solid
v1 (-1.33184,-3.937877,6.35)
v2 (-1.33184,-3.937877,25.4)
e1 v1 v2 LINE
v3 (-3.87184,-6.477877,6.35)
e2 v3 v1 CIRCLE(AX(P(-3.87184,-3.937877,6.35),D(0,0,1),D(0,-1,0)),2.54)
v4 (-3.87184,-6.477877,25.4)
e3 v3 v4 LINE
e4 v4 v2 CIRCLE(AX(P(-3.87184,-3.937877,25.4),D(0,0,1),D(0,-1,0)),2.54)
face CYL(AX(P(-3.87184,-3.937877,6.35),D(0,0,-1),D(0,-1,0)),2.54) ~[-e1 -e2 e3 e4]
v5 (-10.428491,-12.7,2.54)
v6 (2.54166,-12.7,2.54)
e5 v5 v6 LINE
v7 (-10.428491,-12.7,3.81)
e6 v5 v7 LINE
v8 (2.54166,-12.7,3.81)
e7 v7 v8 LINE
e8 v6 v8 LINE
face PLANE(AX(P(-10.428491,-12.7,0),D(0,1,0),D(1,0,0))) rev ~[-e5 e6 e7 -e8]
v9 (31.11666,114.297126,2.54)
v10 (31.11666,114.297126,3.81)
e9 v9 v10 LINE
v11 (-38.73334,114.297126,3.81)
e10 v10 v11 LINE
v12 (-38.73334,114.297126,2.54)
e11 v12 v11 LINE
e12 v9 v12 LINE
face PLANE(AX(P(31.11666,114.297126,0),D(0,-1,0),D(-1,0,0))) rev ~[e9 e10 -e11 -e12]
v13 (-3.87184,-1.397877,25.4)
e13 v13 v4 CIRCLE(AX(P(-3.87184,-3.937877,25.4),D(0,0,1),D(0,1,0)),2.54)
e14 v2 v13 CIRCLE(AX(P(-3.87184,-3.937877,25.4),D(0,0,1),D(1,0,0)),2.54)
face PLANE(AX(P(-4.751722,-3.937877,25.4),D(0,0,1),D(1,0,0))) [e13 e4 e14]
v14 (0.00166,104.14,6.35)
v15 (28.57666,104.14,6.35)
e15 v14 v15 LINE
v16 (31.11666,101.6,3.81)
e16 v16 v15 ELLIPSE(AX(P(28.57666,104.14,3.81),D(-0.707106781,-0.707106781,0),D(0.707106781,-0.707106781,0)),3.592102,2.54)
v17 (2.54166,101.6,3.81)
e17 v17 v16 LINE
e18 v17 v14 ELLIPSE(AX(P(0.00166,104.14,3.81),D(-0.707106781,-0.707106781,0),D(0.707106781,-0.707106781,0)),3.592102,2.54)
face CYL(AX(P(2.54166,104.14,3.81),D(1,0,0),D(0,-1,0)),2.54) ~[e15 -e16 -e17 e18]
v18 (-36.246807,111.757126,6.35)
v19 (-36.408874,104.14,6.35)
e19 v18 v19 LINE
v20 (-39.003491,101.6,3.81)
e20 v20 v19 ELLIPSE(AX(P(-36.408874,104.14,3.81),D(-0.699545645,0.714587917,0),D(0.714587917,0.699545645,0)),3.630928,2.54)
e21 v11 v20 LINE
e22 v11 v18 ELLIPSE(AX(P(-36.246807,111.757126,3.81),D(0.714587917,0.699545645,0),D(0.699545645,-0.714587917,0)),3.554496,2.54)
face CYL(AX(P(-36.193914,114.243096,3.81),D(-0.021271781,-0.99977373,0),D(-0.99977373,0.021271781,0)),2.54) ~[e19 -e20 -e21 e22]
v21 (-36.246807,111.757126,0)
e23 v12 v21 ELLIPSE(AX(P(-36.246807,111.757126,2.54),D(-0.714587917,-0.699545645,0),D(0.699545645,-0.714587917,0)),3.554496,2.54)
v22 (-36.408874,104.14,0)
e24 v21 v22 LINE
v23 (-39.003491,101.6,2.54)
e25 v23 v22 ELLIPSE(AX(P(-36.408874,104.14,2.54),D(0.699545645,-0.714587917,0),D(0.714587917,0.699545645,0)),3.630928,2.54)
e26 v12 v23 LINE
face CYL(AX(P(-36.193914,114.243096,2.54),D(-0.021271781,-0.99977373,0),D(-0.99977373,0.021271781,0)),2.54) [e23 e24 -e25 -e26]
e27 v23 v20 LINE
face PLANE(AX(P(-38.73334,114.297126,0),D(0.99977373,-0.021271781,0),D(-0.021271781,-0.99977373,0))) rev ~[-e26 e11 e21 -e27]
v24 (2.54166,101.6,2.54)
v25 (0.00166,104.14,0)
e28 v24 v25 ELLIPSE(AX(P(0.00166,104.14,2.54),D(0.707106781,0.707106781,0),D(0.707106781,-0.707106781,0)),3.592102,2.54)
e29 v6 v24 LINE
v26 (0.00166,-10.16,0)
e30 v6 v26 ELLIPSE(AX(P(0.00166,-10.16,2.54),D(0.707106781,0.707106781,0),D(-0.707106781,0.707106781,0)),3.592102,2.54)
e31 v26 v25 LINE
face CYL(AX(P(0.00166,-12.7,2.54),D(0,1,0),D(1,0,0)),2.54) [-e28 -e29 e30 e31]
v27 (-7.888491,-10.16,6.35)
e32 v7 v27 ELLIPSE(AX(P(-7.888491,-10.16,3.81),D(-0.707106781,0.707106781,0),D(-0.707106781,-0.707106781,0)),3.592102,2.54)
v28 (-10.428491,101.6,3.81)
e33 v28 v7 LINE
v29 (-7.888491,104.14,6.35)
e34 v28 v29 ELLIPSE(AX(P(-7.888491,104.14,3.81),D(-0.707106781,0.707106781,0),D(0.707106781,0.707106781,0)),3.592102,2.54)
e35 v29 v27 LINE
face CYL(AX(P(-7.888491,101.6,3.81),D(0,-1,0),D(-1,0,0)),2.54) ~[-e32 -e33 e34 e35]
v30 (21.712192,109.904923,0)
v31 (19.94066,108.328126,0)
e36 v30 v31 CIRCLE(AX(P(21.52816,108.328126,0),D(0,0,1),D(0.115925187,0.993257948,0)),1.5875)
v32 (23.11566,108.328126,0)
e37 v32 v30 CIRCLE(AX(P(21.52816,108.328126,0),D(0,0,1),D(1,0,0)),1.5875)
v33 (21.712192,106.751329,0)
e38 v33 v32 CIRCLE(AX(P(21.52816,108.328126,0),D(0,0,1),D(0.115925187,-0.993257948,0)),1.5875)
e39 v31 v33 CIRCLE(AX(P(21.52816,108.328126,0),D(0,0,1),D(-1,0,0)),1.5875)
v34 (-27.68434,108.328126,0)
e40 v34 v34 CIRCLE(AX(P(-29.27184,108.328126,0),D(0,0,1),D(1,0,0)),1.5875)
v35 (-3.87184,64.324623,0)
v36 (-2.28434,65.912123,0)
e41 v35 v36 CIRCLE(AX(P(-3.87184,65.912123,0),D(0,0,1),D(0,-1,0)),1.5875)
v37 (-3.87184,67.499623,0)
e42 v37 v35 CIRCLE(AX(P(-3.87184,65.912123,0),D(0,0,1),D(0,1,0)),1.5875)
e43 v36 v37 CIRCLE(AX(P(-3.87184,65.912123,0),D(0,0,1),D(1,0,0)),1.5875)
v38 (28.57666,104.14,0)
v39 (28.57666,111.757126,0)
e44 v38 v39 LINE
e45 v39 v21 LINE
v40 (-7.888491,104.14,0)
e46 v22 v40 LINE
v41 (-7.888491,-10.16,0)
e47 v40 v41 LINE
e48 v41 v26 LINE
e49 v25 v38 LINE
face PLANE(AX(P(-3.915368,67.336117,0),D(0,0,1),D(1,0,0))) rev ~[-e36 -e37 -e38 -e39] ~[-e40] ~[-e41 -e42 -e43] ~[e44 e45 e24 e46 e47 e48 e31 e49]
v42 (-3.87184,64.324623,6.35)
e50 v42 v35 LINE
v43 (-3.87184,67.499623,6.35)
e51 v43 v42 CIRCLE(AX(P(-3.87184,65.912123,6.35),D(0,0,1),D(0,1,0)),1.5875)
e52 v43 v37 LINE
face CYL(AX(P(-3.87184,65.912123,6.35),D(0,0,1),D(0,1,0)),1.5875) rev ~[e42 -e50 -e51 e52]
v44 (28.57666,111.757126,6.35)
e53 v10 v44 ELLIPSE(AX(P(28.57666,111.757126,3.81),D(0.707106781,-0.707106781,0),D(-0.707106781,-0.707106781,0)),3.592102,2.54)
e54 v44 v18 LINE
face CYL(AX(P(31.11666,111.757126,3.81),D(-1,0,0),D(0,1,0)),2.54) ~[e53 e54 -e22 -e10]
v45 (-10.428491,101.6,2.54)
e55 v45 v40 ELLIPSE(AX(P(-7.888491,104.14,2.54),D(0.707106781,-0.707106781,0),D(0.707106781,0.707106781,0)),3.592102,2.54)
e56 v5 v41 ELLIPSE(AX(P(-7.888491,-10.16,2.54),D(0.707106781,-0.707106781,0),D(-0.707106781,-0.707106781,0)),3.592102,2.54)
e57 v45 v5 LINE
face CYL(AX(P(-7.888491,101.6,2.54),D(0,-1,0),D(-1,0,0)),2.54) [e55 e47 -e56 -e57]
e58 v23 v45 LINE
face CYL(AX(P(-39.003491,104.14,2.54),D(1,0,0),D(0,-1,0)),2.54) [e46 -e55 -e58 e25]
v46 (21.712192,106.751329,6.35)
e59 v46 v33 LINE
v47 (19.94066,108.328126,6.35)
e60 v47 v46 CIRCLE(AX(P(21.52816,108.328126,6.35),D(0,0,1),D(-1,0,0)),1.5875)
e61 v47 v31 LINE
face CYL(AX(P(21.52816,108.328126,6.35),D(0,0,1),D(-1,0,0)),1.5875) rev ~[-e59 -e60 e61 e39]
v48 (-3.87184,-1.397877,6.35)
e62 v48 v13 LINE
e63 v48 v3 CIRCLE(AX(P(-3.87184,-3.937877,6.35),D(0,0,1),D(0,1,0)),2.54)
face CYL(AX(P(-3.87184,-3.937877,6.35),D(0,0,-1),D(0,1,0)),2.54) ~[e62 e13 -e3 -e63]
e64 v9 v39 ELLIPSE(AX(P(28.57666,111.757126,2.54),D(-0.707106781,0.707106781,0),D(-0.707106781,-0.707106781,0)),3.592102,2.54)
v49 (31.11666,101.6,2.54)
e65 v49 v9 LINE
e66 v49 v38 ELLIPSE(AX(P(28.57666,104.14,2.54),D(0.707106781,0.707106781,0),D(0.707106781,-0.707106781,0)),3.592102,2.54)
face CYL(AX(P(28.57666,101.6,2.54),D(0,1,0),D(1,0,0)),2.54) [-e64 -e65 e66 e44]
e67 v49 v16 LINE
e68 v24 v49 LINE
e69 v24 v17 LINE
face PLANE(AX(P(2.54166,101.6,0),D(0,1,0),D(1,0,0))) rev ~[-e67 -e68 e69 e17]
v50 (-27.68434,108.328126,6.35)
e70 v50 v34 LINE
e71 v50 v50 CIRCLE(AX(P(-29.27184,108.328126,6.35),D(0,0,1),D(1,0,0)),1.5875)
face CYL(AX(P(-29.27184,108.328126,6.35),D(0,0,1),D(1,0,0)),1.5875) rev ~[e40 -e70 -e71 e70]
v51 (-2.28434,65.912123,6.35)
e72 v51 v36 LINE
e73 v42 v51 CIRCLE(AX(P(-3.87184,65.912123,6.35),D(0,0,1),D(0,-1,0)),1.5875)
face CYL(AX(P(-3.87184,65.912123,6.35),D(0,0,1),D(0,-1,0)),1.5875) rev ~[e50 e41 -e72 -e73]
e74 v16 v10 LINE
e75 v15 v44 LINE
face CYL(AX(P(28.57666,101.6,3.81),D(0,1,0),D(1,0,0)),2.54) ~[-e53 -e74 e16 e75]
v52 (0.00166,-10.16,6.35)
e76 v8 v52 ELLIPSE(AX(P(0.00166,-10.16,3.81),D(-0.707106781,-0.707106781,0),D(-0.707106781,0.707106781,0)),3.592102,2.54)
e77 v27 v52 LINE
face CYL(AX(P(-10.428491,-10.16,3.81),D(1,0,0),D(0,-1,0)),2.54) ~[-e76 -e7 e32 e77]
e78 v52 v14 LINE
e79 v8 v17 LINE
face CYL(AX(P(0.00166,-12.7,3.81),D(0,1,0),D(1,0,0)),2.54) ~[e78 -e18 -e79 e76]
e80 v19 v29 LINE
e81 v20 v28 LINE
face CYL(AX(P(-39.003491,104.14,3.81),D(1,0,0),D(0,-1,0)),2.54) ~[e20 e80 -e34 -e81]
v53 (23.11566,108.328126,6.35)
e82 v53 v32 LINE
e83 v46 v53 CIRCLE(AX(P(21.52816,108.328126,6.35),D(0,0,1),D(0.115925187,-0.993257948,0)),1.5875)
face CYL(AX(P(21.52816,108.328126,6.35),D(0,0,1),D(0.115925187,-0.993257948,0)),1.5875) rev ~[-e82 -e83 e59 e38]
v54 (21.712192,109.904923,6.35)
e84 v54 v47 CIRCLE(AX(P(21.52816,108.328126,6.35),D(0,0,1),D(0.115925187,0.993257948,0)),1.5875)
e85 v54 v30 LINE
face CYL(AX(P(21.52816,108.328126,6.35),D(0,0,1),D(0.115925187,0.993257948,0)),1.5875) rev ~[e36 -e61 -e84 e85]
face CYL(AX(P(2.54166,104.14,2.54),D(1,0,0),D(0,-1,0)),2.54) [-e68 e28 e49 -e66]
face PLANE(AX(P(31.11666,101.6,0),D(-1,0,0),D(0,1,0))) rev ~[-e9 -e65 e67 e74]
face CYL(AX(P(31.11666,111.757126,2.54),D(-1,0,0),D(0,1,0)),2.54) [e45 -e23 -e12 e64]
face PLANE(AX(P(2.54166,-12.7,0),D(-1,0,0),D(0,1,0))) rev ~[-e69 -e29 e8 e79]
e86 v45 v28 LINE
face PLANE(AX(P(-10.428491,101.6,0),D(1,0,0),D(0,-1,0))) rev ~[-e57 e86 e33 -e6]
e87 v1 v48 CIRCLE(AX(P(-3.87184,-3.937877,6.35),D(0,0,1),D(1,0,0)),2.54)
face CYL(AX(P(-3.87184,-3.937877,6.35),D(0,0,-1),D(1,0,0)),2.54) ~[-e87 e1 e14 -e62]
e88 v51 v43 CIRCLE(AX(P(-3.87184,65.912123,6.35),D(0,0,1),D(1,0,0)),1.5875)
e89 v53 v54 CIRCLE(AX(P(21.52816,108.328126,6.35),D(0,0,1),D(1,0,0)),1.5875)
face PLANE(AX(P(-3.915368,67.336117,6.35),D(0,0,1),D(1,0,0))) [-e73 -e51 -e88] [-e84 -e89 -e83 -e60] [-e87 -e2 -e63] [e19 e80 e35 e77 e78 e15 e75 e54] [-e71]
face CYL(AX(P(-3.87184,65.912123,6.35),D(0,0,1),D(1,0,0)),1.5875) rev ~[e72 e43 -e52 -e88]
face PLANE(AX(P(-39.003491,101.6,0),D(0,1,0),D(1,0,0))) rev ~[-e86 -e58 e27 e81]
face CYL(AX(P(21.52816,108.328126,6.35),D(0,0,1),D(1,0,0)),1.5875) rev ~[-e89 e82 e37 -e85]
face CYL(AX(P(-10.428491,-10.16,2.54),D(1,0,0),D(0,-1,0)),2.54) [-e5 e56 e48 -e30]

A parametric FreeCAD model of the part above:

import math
import FreeCAD as App
import Part
import Sketcher
from FreeCAD import Vector
Q = App.Units.Quantity


def edges_at(feature, points):
    """Names of the edges that pass closest to the given points."""
    edges = feature.Shape.Edges
    near = lambda p: min(range(len(edges)), key=lambda i: edges[i].distToShape(Part.Vertex(*p))[0])
    return sorted({f"Edge{near(p) + 1}" for p in points})


def add_polygon(sketch, points):
    """Adds a closed chain of lines whose ends are joined by coincident constraints."""
    first, n = sketch.GeometryCount, len(points)
    for a, b in zip(points, points[1:] + points[:1]):
        sketch.addGeometry(Part.LineSegment(App.Vector(*a, 0), App.Vector(*b, 0)), False)
    for i in range(n):
        sketch.addConstraint(Sketcher.Constraint("Coincident", first + i, 2, first + (i + 1) % n, 1))

doc = App.newDocument("Part")
body = doc.addObject("PartDesign::Body", "Body")

sketch1 = doc.addObject("Sketcher::SketchObject", "Sketch")
body.addObject(sketch1)
sketch1.AttachmentSupport = (doc.XY_Plane, [""])
sketch1.MapMode = "FlatFace"
add_polygon(sketch1, [(31, 114), (-39, 114), (-39, 102), (-10, 102), (-10, -13), (3, -13), (3, 102), (31, 102)])
sketch1.addConstraint([
    Sketcher.Constraint("Horizontal", 0),
    Sketcher.Constraint("Horizontal", 2),
    Sketcher.Constraint("Vertical", 3),
    Sketcher.Constraint("Horizontal", 4),
    Sketcher.Constraint("Vertical", 5),
    Sketcher.Constraint("Horizontal", 6),
    Sketcher.Constraint("Vertical", 7),
    Sketcher.Constraint("Horizontal", 2, 2, 5, 2),
    Sketcher.Constraint("Equal", 2, 6),
    Sketcher.Constraint("DistanceY", 3, 2, 3, 1, Q("4.5 in")),
    Sketcher.Constraint("DistanceY", -1, 1, 1, 2, Q("4 in")),
    Sketcher.Constraint("Distance", 1, Q("0.5 in")),
    Sketcher.Constraint("DistanceX", 0, 2, 0, 1, Q("2.75 in")),
    Sketcher.Constraint("DistanceX", 2, 1, 2, 2, Q("1.125 in")),
    Sketcher.Constraint("DistanceX", 4, 1, 4, 2, Q("12.970152 mm")),
    Sketcher.Constraint("DistanceX", 0, 2, -1, 1, Q("38.73334 mm")),
])
pad1 = doc.addObject("PartDesign::Pad", "Pad")
body.addObject(pad1)
pad1.Profile = sketch1
pad1.Length = Q("0.25 in")
doc.recompute()

fillet = doc.addObject("PartDesign::Fillet", "Fillet")
body.addObject(fillet)
fillet.Base = (pad1, edges_at(pad1, [
    (-24.716, 101.6, 6.35),
    (-38.868, 107.949, 6.35),
    (-3.808, 114.297, 6.35),
    (16.829, 101.6, 6.35),
    (31.117, 107.949, 6.35),
    (2.542, 44.45, 6.35),
    (-10.428, 44.45, 6.35),
    (-3.943, -12.7, 6.35),
    (-24.716, 101.6, 0),
    (-38.868, 107.949, 0),
    (-3.808, 114.297, 0),
    (16.829, 101.6, 0),
    (31.117, 107.949, 0),
    (2.542, 44.45, 0),
    (-10.428, 44.45, 0),
    (-3.943, -12.7, 0),
]))
fillet.Radius = Q("0.1 in")

sketch2 = doc.addObject("Sketcher::SketchObject", "Sketch001")
body.addObject(sketch2)
sketch2.AttachmentSupport = (doc.XY_Plane, [""])
sketch2.MapMode = "FlatFace"
sketch2.AttachmentOffset = App.Placement(Vector(0, 0, 0.25 * 25.4), App.Rotation())
sketch2.addGeometry(Part.Circle(Vector(-29.3, 108.3, 0), Vector(0, 0, 1), 1.6), False)
sketch2.addConstraint([
    Sketcher.Constraint("Diameter", 0, Q("0.125 in")),
    Sketcher.Constraint("DistanceX", 0, 3, -1, 1, Q("29.27184 mm")),
    Sketcher.Constraint("DistanceY", -1, 1, 0, 3, Q("108.328126 mm")),
])
pocket1 = doc.addObject("PartDesign::Pocket", "Pocket")
body.addObject(pocket1)
pocket1.Profile = sketch2
pocket1.Length = Q("0.25 in")

sketch3 = doc.addObject("Sketcher::SketchObject", "Sketch002")
body.addObject(sketch3)
sketch3.AttachmentSupport = (doc.XY_Plane, [""])
sketch3.MapMode = "FlatFace"
sketch3.AttachmentOffset = App.Placement(Vector(0, 0, 0.25 * 25.4), App.Rotation())
sketch3.addGeometry([
    Part.ArcOfCircle(Part.Circle(Vector(21.5, 108.3, 0), Vector(0, 0, 1), 1.6), math.radians(83), math.radians(180)),
    Part.ArcOfCircle(Part.Circle(Vector(21.5, 108.3, 0), Vector(0, 0, 1), 1.6), math.radians(180), math.radians(277)),
    Part.ArcOfCircle(Part.Circle(Vector(21.5, 108.3, 0), Vector(0, 0, 1), 1.6), math.radians(-83), math.radians(0)),
    Part.ArcOfCircle(Part.Circle(Vector(21.5, 108.3, 0), Vector(0, 0, 1), 1.6), math.radians(0), math.radians(83)),
], False)
sketch3.addConstraint([
    Sketcher.Constraint("Tangent", 0, 2, 1, 1),
    Sketcher.Constraint("Tangent", 1, 2, 2, 1),
    Sketcher.Constraint("Tangent", 2, 2, 3, 1),
    Sketcher.Constraint("Tangent", 3, 2, 0, 1),
    Sketcher.Constraint("Equal", 0, 1),
    Sketcher.Constraint("Horizontal", 3, 3, 0, 2),
    Sketcher.Constraint("Horizontal", 0, 2, 2, 2),
    Sketcher.Constraint("Vertical", 1, 2, 3, 2),
    Sketcher.Constraint("Radius", 0, Q("0.0625 in")),
    Sketcher.Constraint("DistanceX", -1, 1, 0, 3, Q("21.52816 mm")),
    Sketcher.Constraint("DistanceX", -1, 1, 1, 2, Q("21.712192 mm")),
    Sketcher.Constraint("DistanceY", -1, 1, 1, 2, Q("106.751329 mm")),
])
pocket2 = doc.addObject("PartDesign::Pocket", "Pocket001")
body.addObject(pocket2)
pocket2.Profile = sketch3
pocket2.Length = Q("0.25 in")

sketch4 = doc.addObject("Sketcher::SketchObject", "Sketch003")
body.addObject(sketch4)
sketch4.AttachmentSupport = (doc.XY_Plane, [""])
sketch4.MapMode = "FlatFace"
sketch4.AttachmentOffset = App.Placement(Vector(0, 0, 0.25 * 25.4), App.Rotation())
sketch4.addGeometry([
    Part.ArcOfCircle(Part.Circle(Vector(-3.9, 65.9, 0), Vector(0, 0, 1), 1.6), math.radians(90), math.radians(270)),
    Part.ArcOfCircle(Part.Circle(Vector(-3.9, 65.9, 0), Vector(0, 0, 1), 1.6), math.radians(-90), math.radians(0)),
    Part.ArcOfCircle(Part.Circle(Vector(-3.9, 65.9, 0), Vector(0, 0, 1), 1.6), math.radians(0), math.radians(90)),
], False)
sketch4.addConstraint([
    Sketcher.Constraint("Tangent", 0, 2, 1, 1),
    Sketcher.Constraint("Tangent", 1, 2, 2, 1),
    Sketcher.Constraint("Tangent", 2, 2, 0, 1),
    Sketcher.Constraint("Horizontal", 2, 3, 1, 2),
    Sketcher.Constraint("Vertical", 2, 3, 0, 2),
    Sketcher.Constraint("Vertical", 0, 2, 2, 2),
    Sketcher.Constraint("Radius", 0, Q("0.0625 in")),
    Sketcher.Constraint("DistanceX", 0, 3, -1, 1, Q("3.87184 mm")),
    Sketcher.Constraint("DistanceY", -1, 1, 0, 3, Q("65.912123 mm")),
])
pocket3 = doc.addObject("PartDesign::Pocket", "Pocket002")
body.addObject(pocket3)
pocket3.Profile = sketch4
pocket3.Length = Q("0.25 in")

sketch5 = doc.addObject("Sketcher::SketchObject", "Sketch004")
body.addObject(sketch5)
sketch5.AttachmentSupport = (doc.XY_Plane, [""])
sketch5.MapMode = "FlatFace"
sketch5.AttachmentOffset = App.Placement(Vector(0, 0, 0.25 * 25.4), App.Rotation())
sketch5.addGeometry([
    Part.ArcOfCircle(Part.Circle(Vector(-3.9, -3.9, 0), Vector(0, 0, 1), 2.5), math.radians(90), math.radians(270)),
    Part.ArcOfCircle(Part.Circle(Vector(-3.9, -3.9, 0), Vector(0, 0, 1), 2.5), math.radians(-90), math.radians(0)),
    Part.ArcOfCircle(Part.Circle(Vector(-3.9, -3.9, 0), Vector(0, 0, 1), 2.5), math.radians(0), math.radians(90)),
], False)
sketch5.addConstraint([
    Sketcher.Constraint("Tangent", 0, 2, 1, 1),
    Sketcher.Constraint("Tangent", 1, 2, 2, 1),
    Sketcher.Constraint("Tangent", 2, 2, 0, 1),
    Sketcher.Constraint("Horizontal", 2, 3, 1, 2),
    Sketcher.Constraint("Vertical", 2, 3, 0, 2),
    Sketcher.Constraint("Vertical", 0, 2, 2, 2),
    Sketcher.Constraint("Radius", 0, Q("0.1 in")),
    Sketcher.Constraint("DistanceX", 0, 3, -1, 1, Q("3.87184 mm")),
    Sketcher.Constraint("DistanceY", 0, 3, -1, 1, Q("3.937877 mm")),
])
pad2 = doc.addObject("PartDesign::Pad", "Pad001")
body.addObject(pad2)
pad2.Profile = sketch5
pad2.Length = Q("0.75 in")

doc.recompute()
